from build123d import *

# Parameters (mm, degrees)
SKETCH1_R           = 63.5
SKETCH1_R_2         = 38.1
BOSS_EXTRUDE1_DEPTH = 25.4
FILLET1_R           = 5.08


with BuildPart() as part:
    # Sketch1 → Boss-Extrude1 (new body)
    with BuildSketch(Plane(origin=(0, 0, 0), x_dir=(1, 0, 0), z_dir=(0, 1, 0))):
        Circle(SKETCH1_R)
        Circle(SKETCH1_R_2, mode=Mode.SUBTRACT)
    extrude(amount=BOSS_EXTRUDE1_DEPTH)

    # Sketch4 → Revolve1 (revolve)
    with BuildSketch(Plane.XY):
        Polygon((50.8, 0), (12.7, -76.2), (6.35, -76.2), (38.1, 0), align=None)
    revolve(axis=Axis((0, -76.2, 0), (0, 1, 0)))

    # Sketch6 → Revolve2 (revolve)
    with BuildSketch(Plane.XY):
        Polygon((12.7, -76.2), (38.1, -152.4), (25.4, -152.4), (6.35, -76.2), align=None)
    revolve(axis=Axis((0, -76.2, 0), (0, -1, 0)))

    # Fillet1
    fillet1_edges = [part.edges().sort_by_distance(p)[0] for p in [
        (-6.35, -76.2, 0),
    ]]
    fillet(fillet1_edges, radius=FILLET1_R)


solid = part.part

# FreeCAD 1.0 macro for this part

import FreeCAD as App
import Part
import Sketcher
from FreeCAD import Vector
Q = App.Units.Quantity


def edges_at(feature, points):
    """Names of the edges that pass closest to the given points."""
    edges = feature.Shape.Edges
    near = lambda p: min(range(len(edges)), key=lambda i: edges[i].distToShape(Part.Vertex(*p))[0])
    return sorted({f"Edge{near(p) + 1}" for p in points})

doc = App.newDocument("Part")
body = doc.addObject("PartDesign::Body", "Body")

sketch1 = body.newObject("Sketcher::SketchObject", "Sketch")
sketch1.AttachmentSupport = (doc.getObject("XZ_Plane"), [""])
sketch1.MapMode = "FlatFace"
sketch1.addGeometry(Part.Circle(Vector(0, 0, 0), Vector(0, 0, 1), 63.5), False)
sketch1.addGeometry(Part.Circle(Vector(0, 0, 0), Vector(0, 0, 1), 38.1), False)
sketch1.addConstraint(Sketcher.Constraint("Coincident", 0, 3, -1, 1))
sketch1.addConstraint(Sketcher.Constraint("Coincident", 1, 3, -1, 1))
sketch1.addConstraint(Sketcher.Constraint("Diameter", 0, Q("5 in")))
sketch1.addConstraint(Sketcher.Constraint("Diameter", 1, Q("3 in")))
pad1 = body.newObject("PartDesign::Pad", "Pad")
pad1.Profile = sketch1
pad1.Length = Q("1 in")
pad1.Reversed = True

sketch2 = body.newObject("Sketcher::SketchObject", "Sketch001")
sketch2.AttachmentSupport = (doc.getObject("XY_Plane"), [""])
sketch2.MapMode = "FlatFace"
sketch2.addGeometry(Part.LineSegment(Vector(12.7, -76.2, 0), Vector(50.8, 0, 0)), False)
sketch2.addGeometry(Part.LineSegment(Vector(50.8, 0, 0), Vector(38.1, 0, 0)), False)
sketch2.addGeometry(Part.LineSegment(Vector(38.1, 0, 0), Vector(6.35, -76.2, 0)), False)
sketch2.addGeometry(Part.LineSegment(Vector(6.35, -76.2, 0), Vector(12.7, -76.2, 0)), False)
sketch2.addConstraint(Sketcher.Constraint("Coincident", 0, 2, 1, 1))
sketch2.addConstraint(Sketcher.Constraint("Coincident", 1, 2, 2, 1))
sketch2.addConstraint(Sketcher.Constraint("Coincident", 2, 2, 3, 1))
sketch2.addConstraint(Sketcher.Constraint("Coincident", 3, 2, 0, 1))
sketch2.addConstraint(Sketcher.Constraint("Horizontal", 1))
sketch2.addConstraint(Sketcher.Constraint("Horizontal", 3))
sketch2.addConstraint(Sketcher.Constraint("PointOnObject", 0, 2, -1))
sketch2.addConstraint(Sketcher.Constraint("DistanceX", 1, 2, 1, 1, Q("0.5 in")))
sketch2.addConstraint(Sketcher.Constraint("DistanceX", -1, 1, 0, 2, Q("2 in")))
sketch2.addConstraint(Sketcher.Constraint("DistanceY", 2, 2, -1, 1, Q("3 in")))
sketch2.addConstraint(Sketcher.Constraint("DistanceX", 3, 2, 1, 2, Q("1 in")))
sketch2.addConstraint(Sketcher.Constraint("DistanceX", 3, 1, 3, 2, Q("0.25 in")))
revolution = body.newObject("PartDesign::Revolution", "Revolution")
revolution.Profile = sketch2
revolution.ReferenceAxis = (sketch2, ["V_Axis"])
revolution.Angle = 360

sketch3 = body.newObject("Sketcher::SketchObject", "Sketch002")
sketch3.AttachmentSupport = (doc.getObject("XY_Plane"), [""])
sketch3.MapMode = "FlatFace"
sketch3.addGeometry(Part.LineSegment(Vector(38.1, -152.4, 0), Vector(12.7, -76.2, 0)), False)
sketch3.addGeometry(Part.LineSegment(Vector(12.7, -76.2, 0), Vector(6.35, -76.2, 0)), False)
sketch3.addGeometry(Part.LineSegment(Vector(6.35, -76.2, 0), Vector(25.4, -152.4, 0)), False)
sketch3.addGeometry(Part.LineSegment(Vector(25.4, -152.4, 0), Vector(38.1, -152.4, 0)), False)
sketch3.addConstraint(Sketcher.Constraint("Coincident", 0, 2, 1, 1))
sketch3.addConstraint(Sketcher.Constraint("Coincident", 1, 2, 2, 1))
sketch3.addConstraint(Sketcher.Constraint("Coincident", 2, 2, 3, 1))
sketch3.addConstraint(Sketcher.Constraint("Coincident", 3, 2, 0, 1))
sketch3.addConstraint(Sketcher.Constraint("Horizontal", 1))
sketch3.addConstraint(Sketcher.Constraint("Horizontal", 3))
sketch3.addConstraint(Sketcher.Constraint("DistanceX", 3, 1, 3, 2, Q("0.5 in")))
sketch3.addConstraint(Sketcher.Constraint("DistanceY", 0, 2, -1, 1, Q("3 in")))
sketch3.addConstraint(Sketcher.Constraint("DistanceX", -1, 1, 2, 2, Q("1 in")))
sketch3.addConstraint(Sketcher.Constraint("DistanceY", 2, 2, -1, 1, Q("6 in")))
sketch3.addConstraint(Sketcher.Constraint("DistanceX", 0, 2, 3, 2, Q("1 in")))
sketch3.addConstraint(Sketcher.Constraint("DistanceX", 1, 2, 1, 1, Q("0.25 in")))
revolution2 = body.newObject("PartDesign::Revolution", "Revolution001")
revolution2.Profile = sketch3
revolution2.ReferenceAxis = (sketch3, ["V_Axis"])
revolution2.Angle = 360
doc.recompute()

fillet = body.newObject("PartDesign::Fillet", "Fillet")
fillet.Base = (revolution2, edges_at(revolution2, [(-6.35, -76.2, 0)]))
fillet.Radius = Q("0.2 in")

doc.recompute()
